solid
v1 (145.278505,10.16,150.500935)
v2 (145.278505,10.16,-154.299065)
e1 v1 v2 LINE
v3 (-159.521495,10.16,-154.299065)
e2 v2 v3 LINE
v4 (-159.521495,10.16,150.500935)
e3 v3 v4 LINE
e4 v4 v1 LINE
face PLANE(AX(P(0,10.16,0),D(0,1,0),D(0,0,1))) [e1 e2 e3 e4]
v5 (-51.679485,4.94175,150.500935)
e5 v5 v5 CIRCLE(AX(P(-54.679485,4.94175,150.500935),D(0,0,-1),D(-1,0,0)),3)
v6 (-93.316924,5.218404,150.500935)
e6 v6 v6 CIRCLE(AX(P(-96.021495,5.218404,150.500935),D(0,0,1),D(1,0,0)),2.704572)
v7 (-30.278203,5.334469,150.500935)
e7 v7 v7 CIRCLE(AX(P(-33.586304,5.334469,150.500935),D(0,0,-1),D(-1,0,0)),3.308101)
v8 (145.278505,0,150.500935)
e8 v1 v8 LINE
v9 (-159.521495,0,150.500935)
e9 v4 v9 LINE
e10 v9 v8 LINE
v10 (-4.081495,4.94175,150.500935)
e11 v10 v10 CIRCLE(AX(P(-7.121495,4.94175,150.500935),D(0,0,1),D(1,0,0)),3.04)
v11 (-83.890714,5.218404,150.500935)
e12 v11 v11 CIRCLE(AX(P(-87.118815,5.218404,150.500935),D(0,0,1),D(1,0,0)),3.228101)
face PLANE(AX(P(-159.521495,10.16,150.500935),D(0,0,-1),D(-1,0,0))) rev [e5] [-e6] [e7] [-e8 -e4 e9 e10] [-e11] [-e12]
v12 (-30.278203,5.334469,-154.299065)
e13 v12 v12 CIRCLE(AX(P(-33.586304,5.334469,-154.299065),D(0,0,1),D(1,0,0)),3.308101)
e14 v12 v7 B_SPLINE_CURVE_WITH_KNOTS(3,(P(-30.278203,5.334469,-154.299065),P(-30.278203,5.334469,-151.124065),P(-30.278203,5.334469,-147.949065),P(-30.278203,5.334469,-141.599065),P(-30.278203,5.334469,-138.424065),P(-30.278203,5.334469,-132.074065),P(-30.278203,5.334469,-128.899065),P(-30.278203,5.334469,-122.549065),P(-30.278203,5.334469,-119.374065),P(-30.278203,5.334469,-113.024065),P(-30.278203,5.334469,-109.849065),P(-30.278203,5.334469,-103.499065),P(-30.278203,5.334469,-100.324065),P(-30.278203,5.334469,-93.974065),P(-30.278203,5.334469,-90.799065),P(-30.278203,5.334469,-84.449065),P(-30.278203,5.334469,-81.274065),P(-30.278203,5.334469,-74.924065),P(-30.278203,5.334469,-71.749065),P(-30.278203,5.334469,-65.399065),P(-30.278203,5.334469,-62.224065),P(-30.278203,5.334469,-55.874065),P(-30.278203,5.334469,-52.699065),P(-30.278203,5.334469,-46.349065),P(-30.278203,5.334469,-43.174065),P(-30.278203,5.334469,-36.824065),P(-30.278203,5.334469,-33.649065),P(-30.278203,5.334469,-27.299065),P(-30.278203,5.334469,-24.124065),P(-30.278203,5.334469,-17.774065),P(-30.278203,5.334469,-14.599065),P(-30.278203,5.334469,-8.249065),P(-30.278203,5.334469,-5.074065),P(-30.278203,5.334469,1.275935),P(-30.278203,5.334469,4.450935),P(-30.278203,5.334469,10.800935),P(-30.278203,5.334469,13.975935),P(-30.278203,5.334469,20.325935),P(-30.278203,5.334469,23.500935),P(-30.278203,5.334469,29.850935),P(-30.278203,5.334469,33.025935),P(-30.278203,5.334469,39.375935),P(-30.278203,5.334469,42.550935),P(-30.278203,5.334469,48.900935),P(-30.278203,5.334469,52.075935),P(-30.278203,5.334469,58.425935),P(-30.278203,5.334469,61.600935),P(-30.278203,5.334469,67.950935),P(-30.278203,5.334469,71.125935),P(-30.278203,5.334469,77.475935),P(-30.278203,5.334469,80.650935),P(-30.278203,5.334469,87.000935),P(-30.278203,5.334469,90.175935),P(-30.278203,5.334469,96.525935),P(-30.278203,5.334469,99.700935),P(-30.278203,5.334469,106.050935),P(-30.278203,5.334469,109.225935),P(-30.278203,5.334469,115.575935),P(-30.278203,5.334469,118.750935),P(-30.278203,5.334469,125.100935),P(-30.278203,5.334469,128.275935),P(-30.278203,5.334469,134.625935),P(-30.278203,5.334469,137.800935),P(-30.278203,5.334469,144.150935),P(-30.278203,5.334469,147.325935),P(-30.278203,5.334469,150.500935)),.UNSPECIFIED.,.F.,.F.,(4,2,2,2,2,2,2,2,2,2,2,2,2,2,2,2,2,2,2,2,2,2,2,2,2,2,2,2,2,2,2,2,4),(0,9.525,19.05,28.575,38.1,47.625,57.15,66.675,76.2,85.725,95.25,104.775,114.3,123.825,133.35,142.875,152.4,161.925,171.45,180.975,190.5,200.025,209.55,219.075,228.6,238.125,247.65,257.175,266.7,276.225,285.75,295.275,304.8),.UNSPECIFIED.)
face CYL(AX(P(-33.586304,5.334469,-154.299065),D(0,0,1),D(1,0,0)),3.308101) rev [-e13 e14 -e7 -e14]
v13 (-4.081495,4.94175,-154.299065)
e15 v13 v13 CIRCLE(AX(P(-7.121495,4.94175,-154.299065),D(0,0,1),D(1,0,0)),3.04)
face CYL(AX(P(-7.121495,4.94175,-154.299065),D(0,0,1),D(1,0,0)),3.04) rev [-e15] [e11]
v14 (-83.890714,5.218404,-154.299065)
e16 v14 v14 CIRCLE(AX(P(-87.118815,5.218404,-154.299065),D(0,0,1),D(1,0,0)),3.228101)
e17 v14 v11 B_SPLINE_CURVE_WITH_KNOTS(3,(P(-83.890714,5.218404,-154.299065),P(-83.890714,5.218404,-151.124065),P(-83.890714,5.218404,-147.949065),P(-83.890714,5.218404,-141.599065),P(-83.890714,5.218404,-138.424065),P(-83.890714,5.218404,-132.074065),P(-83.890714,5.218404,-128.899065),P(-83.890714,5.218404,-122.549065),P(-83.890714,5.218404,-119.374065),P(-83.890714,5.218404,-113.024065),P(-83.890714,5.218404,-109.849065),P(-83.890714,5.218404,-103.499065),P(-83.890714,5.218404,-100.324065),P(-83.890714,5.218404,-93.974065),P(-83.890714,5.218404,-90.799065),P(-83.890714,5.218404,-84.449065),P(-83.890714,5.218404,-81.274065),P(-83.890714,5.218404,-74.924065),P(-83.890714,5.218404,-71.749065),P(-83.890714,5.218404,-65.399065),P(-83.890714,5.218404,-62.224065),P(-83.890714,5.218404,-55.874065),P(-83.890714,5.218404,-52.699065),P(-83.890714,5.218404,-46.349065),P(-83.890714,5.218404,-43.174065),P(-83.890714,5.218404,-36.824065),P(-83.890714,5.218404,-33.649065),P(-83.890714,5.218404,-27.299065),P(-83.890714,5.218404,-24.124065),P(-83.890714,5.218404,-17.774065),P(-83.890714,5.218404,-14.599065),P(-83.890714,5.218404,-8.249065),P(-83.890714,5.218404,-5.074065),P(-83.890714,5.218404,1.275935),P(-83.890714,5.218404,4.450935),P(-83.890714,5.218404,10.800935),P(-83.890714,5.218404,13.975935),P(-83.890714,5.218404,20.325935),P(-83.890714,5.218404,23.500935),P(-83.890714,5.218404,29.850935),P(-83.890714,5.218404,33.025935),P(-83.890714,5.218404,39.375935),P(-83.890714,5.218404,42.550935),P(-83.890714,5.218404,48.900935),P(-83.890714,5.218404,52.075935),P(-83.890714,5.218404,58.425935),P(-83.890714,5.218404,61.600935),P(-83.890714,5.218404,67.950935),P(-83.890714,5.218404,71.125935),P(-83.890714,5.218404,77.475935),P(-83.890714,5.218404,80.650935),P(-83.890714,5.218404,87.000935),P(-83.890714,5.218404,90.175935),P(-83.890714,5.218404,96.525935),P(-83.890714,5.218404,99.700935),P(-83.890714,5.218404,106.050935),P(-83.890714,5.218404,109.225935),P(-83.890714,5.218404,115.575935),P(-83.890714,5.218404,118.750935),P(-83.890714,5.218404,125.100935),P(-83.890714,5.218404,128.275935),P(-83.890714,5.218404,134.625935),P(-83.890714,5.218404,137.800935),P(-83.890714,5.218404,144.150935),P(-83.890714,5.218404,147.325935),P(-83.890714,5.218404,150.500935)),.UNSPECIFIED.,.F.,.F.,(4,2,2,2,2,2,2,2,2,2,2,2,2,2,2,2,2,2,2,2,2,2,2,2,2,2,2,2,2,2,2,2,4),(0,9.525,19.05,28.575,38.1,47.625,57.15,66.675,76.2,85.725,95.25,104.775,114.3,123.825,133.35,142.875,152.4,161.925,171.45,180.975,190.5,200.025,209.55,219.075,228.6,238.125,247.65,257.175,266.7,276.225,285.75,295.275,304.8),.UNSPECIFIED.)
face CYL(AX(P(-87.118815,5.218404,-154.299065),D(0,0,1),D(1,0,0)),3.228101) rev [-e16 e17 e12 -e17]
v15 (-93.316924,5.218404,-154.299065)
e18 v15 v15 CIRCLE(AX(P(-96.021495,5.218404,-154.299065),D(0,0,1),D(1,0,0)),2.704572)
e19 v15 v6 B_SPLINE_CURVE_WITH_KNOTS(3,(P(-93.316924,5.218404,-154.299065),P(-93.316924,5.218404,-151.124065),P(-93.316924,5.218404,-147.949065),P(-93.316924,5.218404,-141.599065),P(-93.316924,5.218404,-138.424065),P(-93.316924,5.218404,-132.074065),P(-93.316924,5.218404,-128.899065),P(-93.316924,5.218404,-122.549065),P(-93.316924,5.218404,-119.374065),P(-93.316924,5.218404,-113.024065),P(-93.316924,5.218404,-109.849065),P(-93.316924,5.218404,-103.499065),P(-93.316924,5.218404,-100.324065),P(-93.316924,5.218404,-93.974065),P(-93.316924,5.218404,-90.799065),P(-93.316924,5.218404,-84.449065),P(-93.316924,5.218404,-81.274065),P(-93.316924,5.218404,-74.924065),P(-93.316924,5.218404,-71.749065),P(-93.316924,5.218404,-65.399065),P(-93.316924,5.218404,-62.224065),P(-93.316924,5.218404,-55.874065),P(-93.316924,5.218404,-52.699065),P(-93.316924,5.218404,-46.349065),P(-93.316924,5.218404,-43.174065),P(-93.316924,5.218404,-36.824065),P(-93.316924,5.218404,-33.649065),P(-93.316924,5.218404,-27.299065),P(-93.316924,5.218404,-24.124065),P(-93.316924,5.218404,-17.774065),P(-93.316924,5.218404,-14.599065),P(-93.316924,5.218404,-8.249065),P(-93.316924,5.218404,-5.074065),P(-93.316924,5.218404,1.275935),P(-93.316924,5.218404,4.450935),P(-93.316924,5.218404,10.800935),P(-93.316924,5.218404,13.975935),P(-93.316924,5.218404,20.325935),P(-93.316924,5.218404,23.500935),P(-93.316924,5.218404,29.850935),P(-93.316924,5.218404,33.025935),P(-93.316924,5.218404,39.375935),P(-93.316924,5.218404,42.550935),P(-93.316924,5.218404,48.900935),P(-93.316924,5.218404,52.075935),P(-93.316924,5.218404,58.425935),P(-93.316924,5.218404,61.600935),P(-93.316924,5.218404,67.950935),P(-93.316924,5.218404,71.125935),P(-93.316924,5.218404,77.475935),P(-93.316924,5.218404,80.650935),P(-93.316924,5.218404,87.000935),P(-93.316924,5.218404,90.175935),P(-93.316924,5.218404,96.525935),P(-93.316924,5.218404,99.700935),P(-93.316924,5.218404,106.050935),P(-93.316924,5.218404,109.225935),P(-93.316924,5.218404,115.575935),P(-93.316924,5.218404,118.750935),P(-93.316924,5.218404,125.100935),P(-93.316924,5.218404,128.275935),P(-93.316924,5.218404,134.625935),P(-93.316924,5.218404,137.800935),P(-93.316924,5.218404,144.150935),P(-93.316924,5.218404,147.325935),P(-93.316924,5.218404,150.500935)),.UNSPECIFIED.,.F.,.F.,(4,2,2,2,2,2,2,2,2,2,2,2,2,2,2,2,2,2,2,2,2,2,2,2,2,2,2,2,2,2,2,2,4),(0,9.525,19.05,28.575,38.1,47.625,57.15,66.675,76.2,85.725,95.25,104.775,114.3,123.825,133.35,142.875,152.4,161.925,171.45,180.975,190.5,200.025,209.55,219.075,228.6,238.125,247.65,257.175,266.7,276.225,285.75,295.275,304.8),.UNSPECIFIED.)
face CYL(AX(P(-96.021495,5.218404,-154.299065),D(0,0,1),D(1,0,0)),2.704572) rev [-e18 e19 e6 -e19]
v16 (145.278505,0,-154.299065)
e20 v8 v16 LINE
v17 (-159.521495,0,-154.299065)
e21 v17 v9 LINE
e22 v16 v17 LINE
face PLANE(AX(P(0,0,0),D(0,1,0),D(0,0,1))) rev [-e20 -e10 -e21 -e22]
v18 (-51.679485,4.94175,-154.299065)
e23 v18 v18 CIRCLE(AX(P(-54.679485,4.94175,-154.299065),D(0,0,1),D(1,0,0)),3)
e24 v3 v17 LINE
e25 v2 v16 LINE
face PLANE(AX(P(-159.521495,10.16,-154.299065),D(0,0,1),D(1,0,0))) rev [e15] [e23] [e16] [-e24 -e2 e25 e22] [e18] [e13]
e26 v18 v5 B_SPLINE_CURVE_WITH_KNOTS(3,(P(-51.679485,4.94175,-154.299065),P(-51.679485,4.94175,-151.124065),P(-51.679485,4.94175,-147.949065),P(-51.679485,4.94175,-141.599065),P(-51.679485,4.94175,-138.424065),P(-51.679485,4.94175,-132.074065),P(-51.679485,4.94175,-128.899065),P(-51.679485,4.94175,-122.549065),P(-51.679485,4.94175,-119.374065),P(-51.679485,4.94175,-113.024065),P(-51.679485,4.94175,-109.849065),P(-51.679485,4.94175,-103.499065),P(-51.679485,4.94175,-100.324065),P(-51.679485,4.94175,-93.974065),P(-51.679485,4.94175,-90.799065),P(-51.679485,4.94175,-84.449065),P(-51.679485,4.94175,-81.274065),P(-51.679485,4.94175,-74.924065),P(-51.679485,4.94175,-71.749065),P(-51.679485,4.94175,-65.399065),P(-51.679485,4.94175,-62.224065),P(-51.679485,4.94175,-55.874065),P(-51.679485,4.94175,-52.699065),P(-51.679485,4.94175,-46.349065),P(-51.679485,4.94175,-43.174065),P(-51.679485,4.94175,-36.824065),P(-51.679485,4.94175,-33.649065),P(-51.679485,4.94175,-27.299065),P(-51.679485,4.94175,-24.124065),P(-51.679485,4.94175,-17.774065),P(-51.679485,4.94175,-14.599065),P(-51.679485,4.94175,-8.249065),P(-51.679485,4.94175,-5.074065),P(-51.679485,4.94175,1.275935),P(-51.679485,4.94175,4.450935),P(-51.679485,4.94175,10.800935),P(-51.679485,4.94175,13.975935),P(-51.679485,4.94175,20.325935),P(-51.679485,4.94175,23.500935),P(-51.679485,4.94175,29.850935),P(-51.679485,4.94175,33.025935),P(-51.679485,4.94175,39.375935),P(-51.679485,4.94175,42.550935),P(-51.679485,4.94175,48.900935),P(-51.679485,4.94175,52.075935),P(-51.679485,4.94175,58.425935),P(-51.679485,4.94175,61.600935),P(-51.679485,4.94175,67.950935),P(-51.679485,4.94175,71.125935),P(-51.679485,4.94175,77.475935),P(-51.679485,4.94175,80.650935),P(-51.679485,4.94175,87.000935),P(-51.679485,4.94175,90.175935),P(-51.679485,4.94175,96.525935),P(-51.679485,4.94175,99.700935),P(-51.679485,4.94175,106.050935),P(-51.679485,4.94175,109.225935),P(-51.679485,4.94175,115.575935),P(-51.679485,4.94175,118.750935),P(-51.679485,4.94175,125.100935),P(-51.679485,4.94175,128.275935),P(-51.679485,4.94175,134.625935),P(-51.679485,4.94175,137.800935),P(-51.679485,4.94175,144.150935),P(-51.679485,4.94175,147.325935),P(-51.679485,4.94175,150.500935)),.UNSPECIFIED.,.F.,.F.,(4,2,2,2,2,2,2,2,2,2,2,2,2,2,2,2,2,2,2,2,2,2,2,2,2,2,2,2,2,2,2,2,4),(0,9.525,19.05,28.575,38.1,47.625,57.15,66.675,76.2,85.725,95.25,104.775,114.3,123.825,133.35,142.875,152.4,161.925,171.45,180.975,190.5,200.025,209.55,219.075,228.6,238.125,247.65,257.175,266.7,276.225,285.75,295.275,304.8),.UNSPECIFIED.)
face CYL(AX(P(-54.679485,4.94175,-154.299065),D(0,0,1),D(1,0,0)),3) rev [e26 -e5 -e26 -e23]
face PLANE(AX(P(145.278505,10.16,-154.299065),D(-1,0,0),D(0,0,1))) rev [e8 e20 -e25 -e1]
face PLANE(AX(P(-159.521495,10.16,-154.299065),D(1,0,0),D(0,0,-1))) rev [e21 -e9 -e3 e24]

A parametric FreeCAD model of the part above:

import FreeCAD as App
import Part
import Sketcher
from FreeCAD import Vector
Q = App.Units.Quantity

doc = App.newDocument("Part")
body = doc.addObject("PartDesign::Body", "Body")

sketch1 = body.newObject("Sketcher::SketchObject", "Sketch")
sketch1.AttachmentSupport = (doc.getObject("XZ_Plane"), [""])
sketch1.MapMode = "FlatFace"
sketch1.addGeometry(Part.LineSegment(Vector(-159.521495, -154.299065, 0), Vector(-159.521495, 150.500935, 0)), False)
sketch1.addGeometry(Part.LineSegment(Vector(-159.521495, 150.500935, 0), Vector(145.278505, 150.500935, 0)), False)
sketch1.addGeometry(Part.LineSegment(Vector(145.278505, 150.500935, 0), Vector(145.278505, -154.299065, 0)), False)
sketch1.addGeometry(Part.LineSegment(Vector(145.278505, -154.299065, 0), Vector(-159.521495, -154.299065, 0)), False)
sketch1.addConstraint(Sketcher.Constraint("Coincident", 0, 2, 1, 1))
sketch1.addConstraint(Sketcher.Constraint("Coincident", 1, 2, 2, 1))
sketch1.addConstraint(Sketcher.Constraint("Coincident", 2, 2, 3, 1))
sketch1.addConstraint(Sketcher.Constraint("Coincident", 3, 2, 0, 1))
sketch1.addConstraint(Sketcher.Constraint("Vertical", 0))
sketch1.addConstraint(Sketcher.Constraint("Horizontal", 1))
sketch1.addConstraint(Sketcher.Constraint("Vertical", 2))
sketch1.addConstraint(Sketcher.Constraint("Horizontal", 3))
sketch1.addConstraint(Sketcher.Constraint("Equal", 3, 0))
sketch1.addConstraint(Sketcher.Constraint("DistanceX", 1, 1, 1, 2, Q("12 in")))
sketch1.addConstraint(Sketcher.Constraint("DistanceX", 0, 2, -1, 1, Q("159.521495 mm")))
sketch1.addConstraint(Sketcher.Constraint("DistanceY", -1, 1, 0, 2, Q("150.500935 mm")))
pad1 = body.newObject("PartDesign::Pad", "Pad")
pad1.Profile = sketch1
pad1.Length = Q("0.4 in")
pad1.Reversed = True

sketch2 = body.newObject("Sketcher::SketchObject", "Sketch001")
sketch2.AttachmentSupport = (doc.getObject("XY_Plane"), [""])
sketch2.MapMode = "FlatFace"
sketch2.addGeometry(Part.Circle(Vector(-7.121495, 4.94175, 0), Vector(0, 0, 1), 3.04), False)
sketch2.addConstraint(Sketcher.Constraint("Diameter", 0, Q("6.08 mm")))
sketch2.addConstraint(Sketcher.Constraint("DistanceY", -1, 1, 0, 3, Q("4.94175 mm")))
sketch2.addConstraint(Sketcher.Constraint("DistanceX", 0, 3, -1, 1, Q("7.121495 mm")))
pocket1 = body.newObject("PartDesign::Pocket", "Pocket")
pocket1.Profile = sketch2
pocket1.Type = "ThroughAll"
pocket1.Midplane = True

sketch3 = body.newObject("Sketcher::SketchObject", "Sketch002")
sketch3.AttachmentSupport = (doc.getObject("XY_Plane"), [""])
sketch3.MapMode = "FlatFace"
sketch3.AttachmentOffset = App.Placement(Vector(0, 0, 150.500935), App.Rotation())
sketch3.addGeometry(Part.Circle(Vector(-87.118815, 5.218404, 0), Vector(0, 0, 1), 3.228101), False)
sketch3.addConstraint(Sketcher.Constraint("Diameter", 0, Q("6.456201 mm")))
sketch3.addConstraint(Sketcher.Constraint("DistanceX", 0, 3, -1, 1, Q("87.118815 mm")))
sketch3.addConstraint(Sketcher.Constraint("DistanceY", -1, 1, 0, 3, Q("5.218404 mm")))
pocket2 = body.newObject("PartDesign::Pocket", "Pocket001")
pocket2.Profile = sketch3
pocket2.Type = "ThroughAll"

sketch4 = body.newObject("Sketcher::SketchObject", "Sketch003")
sketch4.AttachmentSupport = (doc.getObject("XY_Plane"), [""])
sketch4.MapMode = "FlatFace"
sketch4.AttachmentOffset = App.Placement(Vector(0, 0, 150.500935), App.Rotation())
sketch4.addGeometry(Part.Circle(Vector(-33.586304, 5.334469, 0), Vector(0, 0, 1), 3.308101), False)
sketch4.addConstraint(Sketcher.Constraint("Diameter", 0, Q("6.616202 mm")))
sketch4.addConstraint(Sketcher.Constraint("DistanceY", -1, 1, 0, 3, Q("5.334469 mm")))
sketch4.addConstraint(Sketcher.Constraint("DistanceX", 0, 3, -1, 1, Q("33.586304 mm")))
pocket3 = body.newObject("PartDesign::Pocket", "Pocket002")
pocket3.Profile = sketch4
pocket3.Type = "ThroughAll"
pocket3.Midplane = True

sketch5 = body.newObject("Sketcher::SketchObject", "Sketch004")
sketch5.AttachmentSupport = (doc.getObject("XY_Plane"), [""])
sketch5.MapMode = "FlatFace"
sketch5.AttachmentOffset = App.Placement(Vector(0, 0, 150.500935), App.Rotation())
sketch5.addGeometry(Part.Circle(Vector(-54.679485, 4.94175, 0), Vector(0, 0, 1), 3), False)
sketch5.addConstraint(Sketcher.Constraint("Diameter", 0, Q("6 mm")))
sketch5.addConstraint(Sketcher.Constraint("DistanceY", -1, 1, 0, 3, Q("4.94175 mm")))
sketch5.addConstraint(Sketcher.Constraint("DistanceX", 0, 3, -1, 1, Q("54.679485 mm")))
pocket4 = body.newObject("PartDesign::Pocket", "Pocket003")
pocket4.Profile = sketch5
pocket4.Type = "ThroughAll"
pocket4.Midplane = True

sketch6 = body.newObject("Sketcher::SketchObject", "Sketch005")
sketch6.AttachmentSupport = (doc.getObject("XY_Plane"), [""])
sketch6.MapMode = "FlatFace"
sketch6.AttachmentOffset = App.Placement(Vector(0, 0, 150.500935), App.Rotation())
sketch6.addGeometry(Part.Circle(Vector(-96.021495, 5.218404, 0), Vector(0, 0, 1), 2.704572), False)
sketch6.addConstraint(Sketcher.Constraint("Diameter", 0, Q("5.409143 mm")))
sketch6.addConstraint(Sketcher.Constraint("DistanceX", 0, 3, -1, 1, Q("96.021495 mm")))
sketch6.addConstraint(Sketcher.Constraint("DistanceY", -1, 1, 0, 3, Q("5.218404 mm")))
pocket5 = body.newObject("PartDesign::Pocket", "Pocket004")
pocket5.Profile = sketch6
pocket5.Type = "ThroughAll"

doc.recompute()
